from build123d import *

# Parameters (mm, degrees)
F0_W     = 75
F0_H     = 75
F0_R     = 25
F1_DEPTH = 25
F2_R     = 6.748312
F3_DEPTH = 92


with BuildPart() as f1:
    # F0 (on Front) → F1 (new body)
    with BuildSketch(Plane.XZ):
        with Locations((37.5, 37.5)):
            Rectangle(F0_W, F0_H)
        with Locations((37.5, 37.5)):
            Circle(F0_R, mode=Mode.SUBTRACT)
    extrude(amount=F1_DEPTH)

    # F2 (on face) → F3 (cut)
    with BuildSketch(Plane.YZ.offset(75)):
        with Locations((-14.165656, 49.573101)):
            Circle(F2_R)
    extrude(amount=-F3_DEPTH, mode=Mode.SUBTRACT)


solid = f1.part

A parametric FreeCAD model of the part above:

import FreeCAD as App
import Part
import Sketcher

doc = App.newDocument("Part")
params = doc.addObject("Spreadsheet::Sheet", "Params")
for row, (alias, value) in enumerate([
    ("sketch1_diameter", "50 mm"),
    ("sketch1_width", "75 mm"),
    ("pad1_length", "25 mm"),
    ("pocket1_length", "92 mm"),
], start=1):
    params.set(f"A{row}", alias)
    params.set(f"B{row}", "=" + value)
    params.setAlias(f"B{row}", alias)

body = doc.addObject("PartDesign::Body", "Body")

sketch1 = body.newObject("Sketcher::SketchObject", "Sketch")
sketch1.AttachmentSupport = (doc.getObject("XZ_Plane"), [""])
sketch1.MapMode = "FlatFace"
sketch1.addGeometry([
    Part.LineSegment(App.Vector(0, 75, 0), App.Vector(0, 0, 0)),
    Part.LineSegment(App.Vector(0, 0, 0), App.Vector(75, 0, 0)),
    Part.LineSegment(App.Vector(75, 0, 0), App.Vector(75, 75, 0)),
    Part.LineSegment(App.Vector(75, 75, 0), App.Vector(0, 75, 0)),
    Part.Circle(App.Vector(38, 38, 0), App.Vector(0, 0, 1), 25),
], False)
sketch1.addConstraint([
    Sketcher.Constraint("Coincident", 0, 2, 1, 1),
    Sketcher.Constraint("Coincident", 1, 2, 2, 1),
    Sketcher.Constraint("Coincident", 2, 2, 3, 1),
    Sketcher.Constraint("Coincident", 3, 2, 0, 1),
    Sketcher.Constraint("Vertical", 0),
    Sketcher.Constraint("Horizontal", 1),
    Sketcher.Constraint("Vertical", 2),
    Sketcher.Constraint("Horizontal", 3),
    Sketcher.Constraint("Coincident", 0, 2, -1, 1),
    Sketcher.Constraint("Equal", 3, 0),
    Sketcher.Constraint("Diameter", 4, 50.0),
    Sketcher.Constraint("DistanceX", 1, 1, 1, 2, 75.0),
    Sketcher.Constraint("DistanceX", -1, 1, 4, 3, 37.5),
    Sketcher.Constraint("DistanceY", -1, 1, 4, 3, 37.5),
])
sketch1.setExpression("Constraints[10]", "Params.sketch1_diameter")
sketch1.setExpression("Constraints[11]", "Params.sketch1_width")
pad1 = body.newObject("PartDesign::Pad", "Pad")
pad1.Profile = sketch1
pad1.setExpression("Length", "Params.pad1_length")

sketch2 = body.newObject("Sketcher::SketchObject", "Sketch001")
sketch2.AttachmentSupport = (doc.getObject("YZ_Plane"), [""])
sketch2.MapMode = "FlatFace"
sketch2.AttachmentOffset = App.Placement(App.Vector(0, 0, 75), App.Rotation())
sketch2.addGeometry(Part.Circle(App.Vector(-14, 50, 0), App.Vector(0, 0, 1), 7), False)
sketch2.addConstraint([
    Sketcher.Constraint("Diameter", 0, 13.496624),
    Sketcher.Constraint("DistanceY", -1, 1, 0, 3, 49.573101),
    Sketcher.Constraint("DistanceX", 0, 3, -1, 1, 14.165656),
])
pocket1 = body.newObject("PartDesign::Pocket", "Pocket")
pocket1.Profile = sketch2
pocket1.setExpression("Length", "Params.pocket1_length")

doc.recompute()
